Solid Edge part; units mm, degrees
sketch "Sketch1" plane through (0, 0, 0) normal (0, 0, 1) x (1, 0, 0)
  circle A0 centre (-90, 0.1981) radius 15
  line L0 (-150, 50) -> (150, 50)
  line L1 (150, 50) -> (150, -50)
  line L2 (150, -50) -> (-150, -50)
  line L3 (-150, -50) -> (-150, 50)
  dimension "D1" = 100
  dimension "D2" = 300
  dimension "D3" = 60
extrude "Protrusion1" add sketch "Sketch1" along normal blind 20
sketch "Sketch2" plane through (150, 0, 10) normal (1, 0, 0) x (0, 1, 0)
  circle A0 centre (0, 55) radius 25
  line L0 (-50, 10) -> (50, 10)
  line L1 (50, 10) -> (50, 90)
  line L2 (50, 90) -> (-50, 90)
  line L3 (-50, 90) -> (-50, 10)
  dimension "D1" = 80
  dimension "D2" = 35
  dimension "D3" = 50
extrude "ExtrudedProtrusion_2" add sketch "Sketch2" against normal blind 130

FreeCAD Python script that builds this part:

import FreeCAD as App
import Part
import Sketcher
Q = App.Units.Quantity

doc = App.newDocument("Part")
body = doc.addObject("PartDesign::Body", "Body")

# Sketch on XY plane
sketch1 = body.newObject("Sketcher::SketchObject", "Sketch")
sketch1.AttachmentSupport = (doc.getObject("XY_Plane"), [""])
sketch1.MapMode = "FlatFace"
sketch1.addGeometry([
    Part.LineSegment(App.Vector(150, 50, 0), App.Vector(-150, 50, 0)),  # 0
    Part.LineSegment(App.Vector(-150, 50, 0), App.Vector(-150, -50, 0)),  # 1
    Part.LineSegment(App.Vector(-150, -50, 0), App.Vector(150, -50, 0)),  # 2
    Part.LineSegment(App.Vector(150, -50, 0), App.Vector(150, 50, 0)),  # 3
    Part.Circle(App.Vector(-90, 0, 0), App.Vector(0, 0, 1), 15),  # 4
], False)
sketch1.addConstraint([
    Sketcher.Constraint("Coincident", 0, 2, 1, 1),
    Sketcher.Constraint("Coincident", 1, 2, 2, 1),
    Sketcher.Constraint("Coincident", 2, 2, 3, 1),
    Sketcher.Constraint("Coincident", 3, 2, 0, 1),
    Sketcher.Constraint("Horizontal", 0),
    Sketcher.Constraint("Vertical", 1),
    Sketcher.Constraint("Horizontal", 2),
    Sketcher.Constraint("Vertical", 3),
    Sketcher.Constraint("Symmetric", 0, 2, 2, 2, -1, 1),
    Sketcher.Constraint("Diameter", 4, Q("30 mm")),
    Sketcher.Constraint("DistanceX", 0, 2, -1, 1, Q("150 mm")),
    Sketcher.Constraint("DistanceY", 1, 2, 1, 1, Q("100 mm")),
    Sketcher.Constraint("DistanceX", 4, 3, -1, 1, Q("90 mm")),
    Sketcher.Constraint("DistanceY", -1, 1, 4, 3, Q("0.198 mm")),
])
pad1 = body.newObject("PartDesign::Pad", "Pad")
pad1.Profile = sketch1
pad1.Length = 20

# Sketch on YZ plane
sketch2 = body.newObject("Sketcher::SketchObject", "Sketch001")
sketch2.AttachmentSupport = (doc.getObject("YZ_Plane"), [""])
sketch2.MapMode = "FlatFace"
sketch2.AttachmentOffset = App.Placement(App.Vector(0, 0, 150), App.Rotation())
sketch2.addGeometry([
    Part.LineSegment(App.Vector(-50, 100, 0), App.Vector(-50, 20, 0)),  # 0
    Part.LineSegment(App.Vector(-50, 20, 0), App.Vector(50, 20, 0)),  # 1
    Part.LineSegment(App.Vector(50, 20, 0), App.Vector(50, 100, 0)),  # 2
    Part.LineSegment(App.Vector(50, 100, 0), App.Vector(-50, 100, 0)),  # 3
    Part.Circle(App.Vector(0, 65, 0), App.Vector(0, 0, 1), 25),  # 4
], False)
sketch2.addConstraint([
    Sketcher.Constraint("Coincident", 0, 2, 1, 1),
    Sketcher.Constraint("Coincident", 1, 2, 2, 1),
    Sketcher.Constraint("Coincident", 2, 2, 3, 1),
    Sketcher.Constraint("Coincident", 3, 2, 0, 1),
    Sketcher.Constraint("Vertical", 0),
    Sketcher.Constraint("Horizontal", 1),
    Sketcher.Constraint("Vertical", 2),
    Sketcher.Constraint("Horizontal", 3),
    Sketcher.Constraint("PointOnObject", 4, 3, -2),
    Sketcher.Constraint("Diameter", 4, Q("50 mm")),
    Sketcher.Constraint("DistanceX", 0, 2, -1, 1, Q("50 mm")),
    Sketcher.Constraint("DistanceX", -1, 1, 1, 2, Q("50 mm")),
    Sketcher.Constraint("DistanceY", 0, 2, 0, 1, Q("80 mm")),
    Sketcher.Constraint("DistanceY", -1, 1, 4, 3, Q("65 mm")),
    Sketcher.Constraint("DistanceY", -1, 1, 0, 2, Q("20 mm")),
])
pad2 = body.newObject("PartDesign::Pad", "Pad001")
pad2.Profile = sketch2
pad2.Length = 130
pad2.Reversed = True

doc.recompute()
